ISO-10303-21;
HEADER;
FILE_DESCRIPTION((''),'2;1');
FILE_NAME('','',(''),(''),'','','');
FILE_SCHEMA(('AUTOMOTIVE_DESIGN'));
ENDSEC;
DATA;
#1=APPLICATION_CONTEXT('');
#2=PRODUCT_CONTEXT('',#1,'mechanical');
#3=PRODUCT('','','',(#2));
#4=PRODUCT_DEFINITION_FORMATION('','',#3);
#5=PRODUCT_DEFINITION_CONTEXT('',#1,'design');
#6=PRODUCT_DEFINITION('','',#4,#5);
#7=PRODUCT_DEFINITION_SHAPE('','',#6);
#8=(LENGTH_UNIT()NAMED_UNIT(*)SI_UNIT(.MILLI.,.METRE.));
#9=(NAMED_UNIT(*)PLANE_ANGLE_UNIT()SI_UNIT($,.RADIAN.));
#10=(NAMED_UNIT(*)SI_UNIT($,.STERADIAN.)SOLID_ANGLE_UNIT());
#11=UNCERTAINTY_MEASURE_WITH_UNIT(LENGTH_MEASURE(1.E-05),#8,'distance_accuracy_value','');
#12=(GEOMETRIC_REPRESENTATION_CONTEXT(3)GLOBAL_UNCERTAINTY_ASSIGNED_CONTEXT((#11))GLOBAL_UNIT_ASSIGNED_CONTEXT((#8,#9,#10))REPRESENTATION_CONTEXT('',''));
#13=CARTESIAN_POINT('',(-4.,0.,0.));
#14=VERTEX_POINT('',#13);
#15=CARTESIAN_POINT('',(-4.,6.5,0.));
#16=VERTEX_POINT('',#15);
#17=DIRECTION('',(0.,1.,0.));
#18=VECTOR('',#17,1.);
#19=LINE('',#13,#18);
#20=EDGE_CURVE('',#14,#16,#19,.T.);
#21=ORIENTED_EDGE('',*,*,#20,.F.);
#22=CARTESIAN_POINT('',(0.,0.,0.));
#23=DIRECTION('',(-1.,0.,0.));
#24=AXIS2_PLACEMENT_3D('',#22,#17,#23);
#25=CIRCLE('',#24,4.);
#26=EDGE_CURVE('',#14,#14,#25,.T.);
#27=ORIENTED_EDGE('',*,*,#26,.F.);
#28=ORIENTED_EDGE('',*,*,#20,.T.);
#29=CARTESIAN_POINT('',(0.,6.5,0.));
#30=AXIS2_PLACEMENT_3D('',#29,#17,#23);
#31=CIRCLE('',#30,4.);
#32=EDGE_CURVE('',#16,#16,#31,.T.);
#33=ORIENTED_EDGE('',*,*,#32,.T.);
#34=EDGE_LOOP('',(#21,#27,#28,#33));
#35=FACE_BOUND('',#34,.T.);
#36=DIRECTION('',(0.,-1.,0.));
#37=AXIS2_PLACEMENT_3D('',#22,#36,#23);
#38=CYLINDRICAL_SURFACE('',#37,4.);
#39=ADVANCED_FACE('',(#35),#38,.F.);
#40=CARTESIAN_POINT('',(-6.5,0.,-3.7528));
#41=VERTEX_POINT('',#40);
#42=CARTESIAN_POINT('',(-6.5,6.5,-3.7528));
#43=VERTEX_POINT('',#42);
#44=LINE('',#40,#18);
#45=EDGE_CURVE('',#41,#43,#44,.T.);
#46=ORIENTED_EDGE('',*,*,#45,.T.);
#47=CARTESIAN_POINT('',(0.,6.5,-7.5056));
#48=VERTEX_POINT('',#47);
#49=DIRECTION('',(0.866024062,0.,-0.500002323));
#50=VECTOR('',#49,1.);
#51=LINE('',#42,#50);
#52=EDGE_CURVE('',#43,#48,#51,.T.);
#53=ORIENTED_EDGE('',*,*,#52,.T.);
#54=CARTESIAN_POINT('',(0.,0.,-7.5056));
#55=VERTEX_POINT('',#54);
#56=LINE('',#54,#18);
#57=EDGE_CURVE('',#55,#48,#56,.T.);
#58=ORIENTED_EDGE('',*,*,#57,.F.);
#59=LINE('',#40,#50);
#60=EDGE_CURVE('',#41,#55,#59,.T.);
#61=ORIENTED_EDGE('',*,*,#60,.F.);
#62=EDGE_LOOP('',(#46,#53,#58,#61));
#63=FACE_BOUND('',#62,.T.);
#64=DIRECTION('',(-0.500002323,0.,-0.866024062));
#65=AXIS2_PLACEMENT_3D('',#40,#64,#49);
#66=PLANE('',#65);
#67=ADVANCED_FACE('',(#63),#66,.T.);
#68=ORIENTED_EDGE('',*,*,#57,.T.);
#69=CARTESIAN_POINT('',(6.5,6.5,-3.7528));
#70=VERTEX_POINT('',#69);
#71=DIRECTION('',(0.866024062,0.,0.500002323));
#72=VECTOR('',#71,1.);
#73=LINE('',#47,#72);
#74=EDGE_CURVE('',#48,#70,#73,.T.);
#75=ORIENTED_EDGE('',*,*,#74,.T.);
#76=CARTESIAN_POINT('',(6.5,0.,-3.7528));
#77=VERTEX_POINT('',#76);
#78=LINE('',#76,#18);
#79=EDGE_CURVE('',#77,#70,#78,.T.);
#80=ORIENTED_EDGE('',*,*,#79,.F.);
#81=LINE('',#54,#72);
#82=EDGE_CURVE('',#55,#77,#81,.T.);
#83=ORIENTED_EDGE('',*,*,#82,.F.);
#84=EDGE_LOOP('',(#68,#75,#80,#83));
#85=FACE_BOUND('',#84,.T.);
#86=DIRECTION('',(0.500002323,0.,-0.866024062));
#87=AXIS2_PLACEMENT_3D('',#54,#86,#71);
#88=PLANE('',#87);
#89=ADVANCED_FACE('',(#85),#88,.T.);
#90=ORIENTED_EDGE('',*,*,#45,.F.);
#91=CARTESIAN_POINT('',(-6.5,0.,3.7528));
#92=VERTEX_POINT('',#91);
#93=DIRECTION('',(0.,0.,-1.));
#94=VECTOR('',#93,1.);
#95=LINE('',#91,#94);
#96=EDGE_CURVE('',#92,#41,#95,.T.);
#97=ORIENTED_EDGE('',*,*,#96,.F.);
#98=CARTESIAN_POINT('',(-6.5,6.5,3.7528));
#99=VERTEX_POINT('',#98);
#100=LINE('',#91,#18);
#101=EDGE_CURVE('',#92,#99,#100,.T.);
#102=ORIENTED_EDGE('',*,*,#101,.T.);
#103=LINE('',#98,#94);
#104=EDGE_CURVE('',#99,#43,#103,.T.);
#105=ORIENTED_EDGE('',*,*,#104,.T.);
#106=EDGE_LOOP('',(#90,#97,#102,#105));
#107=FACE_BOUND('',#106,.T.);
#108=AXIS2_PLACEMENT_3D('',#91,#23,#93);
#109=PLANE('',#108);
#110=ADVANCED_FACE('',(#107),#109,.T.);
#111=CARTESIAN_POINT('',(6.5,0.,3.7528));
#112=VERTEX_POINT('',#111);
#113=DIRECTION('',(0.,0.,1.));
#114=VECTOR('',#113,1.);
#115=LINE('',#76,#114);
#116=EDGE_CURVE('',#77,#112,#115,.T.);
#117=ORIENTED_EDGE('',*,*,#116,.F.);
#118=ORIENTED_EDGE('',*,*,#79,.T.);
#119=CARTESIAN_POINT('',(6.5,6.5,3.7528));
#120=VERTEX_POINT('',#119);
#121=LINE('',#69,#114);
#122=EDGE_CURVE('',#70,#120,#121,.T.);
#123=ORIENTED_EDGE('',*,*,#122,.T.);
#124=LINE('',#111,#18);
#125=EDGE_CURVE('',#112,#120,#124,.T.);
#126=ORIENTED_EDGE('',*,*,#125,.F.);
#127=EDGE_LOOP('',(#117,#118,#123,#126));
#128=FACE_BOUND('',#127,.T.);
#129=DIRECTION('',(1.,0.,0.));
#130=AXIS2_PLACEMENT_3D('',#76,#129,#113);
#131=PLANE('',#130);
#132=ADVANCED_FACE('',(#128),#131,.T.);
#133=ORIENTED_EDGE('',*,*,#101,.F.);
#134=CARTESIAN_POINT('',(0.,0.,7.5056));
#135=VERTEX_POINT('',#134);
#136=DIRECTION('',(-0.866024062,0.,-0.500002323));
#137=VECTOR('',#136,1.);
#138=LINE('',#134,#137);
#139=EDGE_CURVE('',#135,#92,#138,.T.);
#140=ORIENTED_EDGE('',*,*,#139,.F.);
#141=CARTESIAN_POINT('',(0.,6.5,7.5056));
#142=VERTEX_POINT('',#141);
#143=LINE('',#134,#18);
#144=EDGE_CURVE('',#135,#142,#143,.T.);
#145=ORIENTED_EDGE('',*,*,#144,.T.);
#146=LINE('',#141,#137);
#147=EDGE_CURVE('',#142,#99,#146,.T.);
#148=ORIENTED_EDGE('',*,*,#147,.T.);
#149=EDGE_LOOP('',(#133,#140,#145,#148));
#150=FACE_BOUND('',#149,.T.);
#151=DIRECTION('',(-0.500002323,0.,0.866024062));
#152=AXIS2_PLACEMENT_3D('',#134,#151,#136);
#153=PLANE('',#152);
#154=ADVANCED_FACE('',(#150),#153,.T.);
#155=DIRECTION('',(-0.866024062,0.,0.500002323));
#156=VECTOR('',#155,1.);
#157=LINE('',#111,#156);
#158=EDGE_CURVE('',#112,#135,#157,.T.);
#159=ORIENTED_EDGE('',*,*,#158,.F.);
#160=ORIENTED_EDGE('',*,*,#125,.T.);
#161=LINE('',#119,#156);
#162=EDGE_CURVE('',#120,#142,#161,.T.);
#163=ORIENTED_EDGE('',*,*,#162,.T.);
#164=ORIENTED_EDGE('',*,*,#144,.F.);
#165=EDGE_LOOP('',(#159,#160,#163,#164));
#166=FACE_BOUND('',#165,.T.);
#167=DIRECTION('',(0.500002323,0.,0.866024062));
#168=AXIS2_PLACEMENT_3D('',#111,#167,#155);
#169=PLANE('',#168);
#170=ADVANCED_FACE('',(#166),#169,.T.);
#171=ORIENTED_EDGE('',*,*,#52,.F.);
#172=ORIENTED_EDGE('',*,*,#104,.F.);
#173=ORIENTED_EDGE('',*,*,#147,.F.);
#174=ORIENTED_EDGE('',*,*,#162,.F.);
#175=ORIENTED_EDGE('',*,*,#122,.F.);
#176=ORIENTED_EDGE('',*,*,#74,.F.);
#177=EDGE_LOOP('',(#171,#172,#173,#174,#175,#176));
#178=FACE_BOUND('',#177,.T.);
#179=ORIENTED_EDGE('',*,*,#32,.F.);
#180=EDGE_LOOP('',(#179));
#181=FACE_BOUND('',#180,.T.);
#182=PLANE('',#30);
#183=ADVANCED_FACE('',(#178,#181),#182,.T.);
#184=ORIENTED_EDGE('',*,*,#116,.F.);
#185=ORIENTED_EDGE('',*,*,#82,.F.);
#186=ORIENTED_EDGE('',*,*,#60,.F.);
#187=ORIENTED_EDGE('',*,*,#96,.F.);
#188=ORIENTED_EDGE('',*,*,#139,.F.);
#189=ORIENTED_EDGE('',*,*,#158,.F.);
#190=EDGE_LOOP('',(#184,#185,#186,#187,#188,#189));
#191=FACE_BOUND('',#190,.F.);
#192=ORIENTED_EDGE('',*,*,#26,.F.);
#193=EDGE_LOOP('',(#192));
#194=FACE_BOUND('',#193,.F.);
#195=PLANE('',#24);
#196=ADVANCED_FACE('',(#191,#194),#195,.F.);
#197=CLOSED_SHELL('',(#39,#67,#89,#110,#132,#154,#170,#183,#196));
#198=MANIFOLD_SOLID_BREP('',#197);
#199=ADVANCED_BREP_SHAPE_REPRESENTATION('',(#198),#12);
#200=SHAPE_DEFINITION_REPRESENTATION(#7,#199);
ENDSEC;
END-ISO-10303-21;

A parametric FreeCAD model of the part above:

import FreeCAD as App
import Part
import Sketcher
from FreeCAD import Vector
Q = App.Units.Quantity


def add_polygon(sketch, points):
    """Adds a closed chain of lines whose ends are joined by coincident constraints."""
    first, n = sketch.GeometryCount, len(points)
    for a, b in zip(points, points[1:] + points[:1]):
        sketch.addGeometry(Part.LineSegment(App.Vector(*a, 0), App.Vector(*b, 0)), False)
    for i in range(n):
        sketch.addConstraint(Sketcher.Constraint("Coincident", first + i, 2, first + (i + 1) % n, 1))

doc = App.newDocument("Part")
params = doc.addObject("Spreadsheet::Sheet", "Params")
for row, (alias, value) in enumerate([
    ("sketch1_diameter", "8 mm"),
    ("pad1_length", "6.5 mm"),
], start=1):
    params.set(f"A{row}", alias)
    params.set(f"B{row}", "=" + value)
    params.setAlias(f"B{row}", alias)

body = doc.addObject("PartDesign::Body", "Body")

# Sketch on XZ plane
sketch1 = body.newObject("Sketcher::SketchObject", "Sketch")
sketch1.AttachmentSupport = (doc.getObject("XZ_Plane"), [""])
sketch1.MapMode = "FlatFace"
add_polygon(sketch1, [(6.5, -3.8), (0, -7.5), (-6.5, -3.8), (-6.5, 3.8), (0, 7.5), (6.5, 3.8)])  # lines 0-5
sketch1.addGeometry(Part.Circle(Vector(0, 0, 0), Vector(0, 0, 1), 4), False)  # 6
sketch1.addConstraint(Sketcher.Constraint("Vertical", 2))
sketch1.addConstraint(Sketcher.Constraint("Vertical", 5))
sketch1.addConstraint(Sketcher.Constraint("Coincident", 6, 3, -1, 1))
sketch1.addConstraint(Sketcher.Constraint("Symmetric", 0, 2, 3, 2, -1, 1))
sketch1.addConstraint(Sketcher.Constraint("Symmetric", 1, 2, 4, 2, -1, 1))
sketch1.addConstraint(Sketcher.Constraint("PointOnObject", 0, 2, -2))
sketch1.addConstraint(Sketcher.Constraint("Parallel", 0, 3))
sketch1.addConstraint(Sketcher.Constraint("Horizontal", 2, 2, 4, 2))
sketch1.addConstraint(Sketcher.Constraint("Diameter", 6, Q("8 mm")))
sketch1.addConstraint(Sketcher.Constraint("DistanceX", 2, 2, 4, 2, Q("13 mm")))
sketch1.addConstraint(Sketcher.Constraint("Angle", 0, Q("-149.9998 deg")))
sketch1.addConstraint(Sketcher.Constraint("DistanceY", 2, 1, 2, 2, Q("7.5056 mm")))
sketch1.setExpression("Constraints[14]", "Params.sketch1_diameter")
pad1 = body.newObject("PartDesign::Pad", "Pad")
pad1.Profile = sketch1
pad1.setExpression("Length", "Params.pad1_length")
pad1.Reversed = True

doc.recompute()
